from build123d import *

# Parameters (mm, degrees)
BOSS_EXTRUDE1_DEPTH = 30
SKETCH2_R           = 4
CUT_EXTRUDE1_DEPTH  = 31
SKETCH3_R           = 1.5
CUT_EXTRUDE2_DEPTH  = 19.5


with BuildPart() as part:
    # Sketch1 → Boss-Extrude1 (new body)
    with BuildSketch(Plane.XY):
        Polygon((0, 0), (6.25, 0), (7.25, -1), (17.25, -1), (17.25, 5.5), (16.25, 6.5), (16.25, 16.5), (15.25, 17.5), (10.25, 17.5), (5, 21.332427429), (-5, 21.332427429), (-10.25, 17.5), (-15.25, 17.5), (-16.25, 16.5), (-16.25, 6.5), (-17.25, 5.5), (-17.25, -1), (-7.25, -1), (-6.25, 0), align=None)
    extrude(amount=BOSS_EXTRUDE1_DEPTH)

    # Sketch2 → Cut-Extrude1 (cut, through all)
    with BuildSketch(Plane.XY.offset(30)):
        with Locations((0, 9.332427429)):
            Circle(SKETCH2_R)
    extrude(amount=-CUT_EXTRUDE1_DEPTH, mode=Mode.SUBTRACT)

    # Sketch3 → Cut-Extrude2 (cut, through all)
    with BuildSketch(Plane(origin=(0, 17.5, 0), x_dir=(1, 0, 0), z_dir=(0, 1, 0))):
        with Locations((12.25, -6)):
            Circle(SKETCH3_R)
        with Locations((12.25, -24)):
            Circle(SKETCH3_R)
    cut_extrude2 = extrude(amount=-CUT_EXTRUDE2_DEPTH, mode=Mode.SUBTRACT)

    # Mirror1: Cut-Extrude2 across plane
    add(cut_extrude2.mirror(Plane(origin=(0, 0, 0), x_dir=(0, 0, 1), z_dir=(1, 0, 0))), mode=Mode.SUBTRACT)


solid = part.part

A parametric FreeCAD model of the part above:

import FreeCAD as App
import Part
import Sketcher

V = App.Vector
Q = App.Units.Quantity


def add_polygon(sketch, points):
    """Adds a closed chain of lines whose ends are joined by coincident constraints."""
    first, n = sketch.GeometryCount, len(points)
    for a, b in zip(points, points[1:] + points[:1]):
        sketch.addGeometry(Part.LineSegment(App.Vector(*a, 0), App.Vector(*b, 0)), False)
    for i in range(n):
        sketch.addConstraint(Sketcher.Constraint("Coincident", first + i, 2, first + (i + 1) % n, 1))

doc = App.newDocument("Part")
params = doc.addObject("Spreadsheet::Sheet", "Params")
for row, (alias, value) in enumerate([
    ("sketch1_width", "10 mm"),
    ("sketch1_width2", "5 mm"),
    ("sketch1_width3", "12.5 mm"),
    ("sketch1_height", "6.5 mm"),
    ("sketch1_length", "6.5 mm"),
    ("pad1_length", "30 mm"),
    ("sketch2_diameter", "8 mm"),
    ("sketch3_diameter", "3 mm"),
], start=1):
    params.set(f"A{row}", alias)
    params.set(f"B{row}", "=" + value)
    params.setAlias(f"B{row}", alias)

body = doc.addObject("PartDesign::Body", "Body")

# Sketch on XY plane
sketch1 = body.newObject("Sketcher::SketchObject", "Sketch")
sketch1.AttachmentSupport = (doc.getObject("XY_Plane"), [""])
sketch1.MapMode = "FlatFace"
add_polygon(sketch1, [(6.2, 0), (7.2, -1), (17.2, -1), (17.2, 5.5), (16.2, 6.5), (16.2, 16.5), (15.2, 17.5), (10.2, 17.5), (5, 21.3), (-5, 21.3), (-10.2, 17.5), (-15.2, 17.5), (-16.2, 16.5), (-16.2, 6.5), (-17.2, 5.5), (-17.2, -1), (-7.2, -1), (-6.2, 0)])  # lines 0-17
sketch1.addConstraint([
    Sketcher.Constraint("Horizontal", 1),
    Sketcher.Constraint("Vertical", 2),
    Sketcher.Constraint("Vertical", 4),
    Sketcher.Constraint("Horizontal", 6),
    Sketcher.Constraint("Horizontal", 8),
    Sketcher.Constraint("Horizontal", 10),
    Sketcher.Constraint("Vertical", 12),
    Sketcher.Constraint("Vertical", 14),
    Sketcher.Constraint("Horizontal", 15),
    Sketcher.Constraint("Horizontal", 17),
    Sketcher.Constraint("Symmetric", 16, 2, 17, 2, -1, 1),
    Sketcher.Constraint("Symmetric", 6, 2, 9, 2, -2),
    Sketcher.Constraint("Symmetric", 4, 2, 11, 2, -2),
    Sketcher.Constraint("Symmetric", 2, 2, 13, 2, -2),
    Sketcher.Constraint("Symmetric", 0, 2, 15, 2, -2),
    Sketcher.Constraint("Parallel", 0, 3),
    Sketcher.Constraint("Parallel", 3, 5),
    Sketcher.Constraint("Perpendicular", 5, 11),
    Sketcher.Constraint("Parallel", 11, 13),
    Sketcher.Constraint("Parallel", 13, 16),
    Sketcher.Constraint("Equal", 1, 8),
    Sketcher.Constraint("Equal", 15, 4),
    Sketcher.Constraint("Equal", 0, 3),
    Sketcher.Constraint("Equal", 3, 5),
    Sketcher.Constraint("Equal", 7, 9),
    Sketcher.Constraint("DistanceX", 1, 1, 1, 2, Q("10 mm")),
    Sketcher.Constraint("DistanceX", 6, 2, 6, 1, Q("5 mm")),
    Sketcher.Constraint("DistanceX", 17, 1, 17, 2, Q("12.5 mm")),
    Sketcher.Constraint("DistanceY", 2, 1, 2, 2, Q("6.5 mm")),
    Sketcher.Constraint("DistanceY", 0, 2, -1, 1, Q("1 mm")),
    Sketcher.Constraint("Distance", 7, Q("6.5 mm")),
])
sketch1.setExpression("Constraints[43]", "Params.sketch1_width")
sketch1.setExpression("Constraints[44]", "Params.sketch1_width2")
sketch1.setExpression("Constraints[45]", "Params.sketch1_width3")
sketch1.setExpression("Constraints[46]", "Params.sketch1_height")
sketch1.setExpression("Constraints[48]", "Params.sketch1_length")
pad1 = body.newObject("PartDesign::Pad", "Pad")
pad1.Profile = sketch1
pad1.setExpression("Length", "Params.pad1_length")

# Sketch on XY plane
sketch2 = body.newObject("Sketcher::SketchObject", "Sketch001")
sketch2.AttachmentSupport = (doc.getObject("XY_Plane"), [""])
sketch2.MapMode = "FlatFace"
sketch2.AttachmentOffset = App.Placement(V(0, 0, 30), App.Rotation())
sketch2.addGeometry(Part.Circle(V(0, 9.3, 0), V(0, 0, 1), 4), False)
sketch2.addConstraint([
    Sketcher.Constraint("PointOnObject", 0, 3, -2),
    Sketcher.Constraint("Diameter", 0, Q("8 mm")),
    Sketcher.Constraint("DistanceY", -1, 1, 0, 3, Q("9.332427 mm")),
])
sketch2.setExpression("Constraints[1]", "Params.sketch2_diameter")
pocket1 = body.newObject("PartDesign::Pocket", "Pocket")
pocket1.Profile = sketch2
pocket1.Type = "ThroughAll"

# Sketch on XZ plane
sketch3 = body.newObject("Sketcher::SketchObject", "Sketch002")
sketch3.AttachmentSupport = (doc.getObject("XZ_Plane"), [""])
sketch3.MapMode = "FlatFace"
sketch3.AttachmentOffset = App.Placement(V(0, 0, -17.5), App.Rotation())
sketch3.addGeometry([
    Part.Circle(V(12.2, 6, 0), V(0, 0, 1), 1.5),
    Part.Circle(V(12.2, 24, 0), V(0, 0, 1), 1.5),
], False)
sketch3.addConstraint([
    Sketcher.Constraint("Equal", 0, 1),
    Sketcher.Constraint("Vertical", 0, 3, 1, 3),
    Sketcher.Constraint("Diameter", 0, Q("3 mm")),
    Sketcher.Constraint("DistanceY", -1, 1, 0, 3, Q("6 mm")),
    Sketcher.Constraint("DistanceY", -1, 1, 1, 3, Q("24 mm")),
    Sketcher.Constraint("DistanceX", -1, 1, 0, 3, Q("12.25 mm")),
])
sketch3.setExpression("Constraints[2]", "Params.sketch3_diameter")
pocket2 = body.newObject("PartDesign::Pocket", "Pocket001")
pocket2.Profile = sketch3
pocket2.Type = "ThroughAll"
pocket2.Reversed = True
doc.recompute()

mirrored = body.newObject("PartDesign::Mirrored", "Mirrored")
mirrored.Originals = [pocket2]
mirrored.MirrorPlane = (doc.getObject("YZ_Plane"), [""])
body.Tip = mirrored

doc.recompute()
